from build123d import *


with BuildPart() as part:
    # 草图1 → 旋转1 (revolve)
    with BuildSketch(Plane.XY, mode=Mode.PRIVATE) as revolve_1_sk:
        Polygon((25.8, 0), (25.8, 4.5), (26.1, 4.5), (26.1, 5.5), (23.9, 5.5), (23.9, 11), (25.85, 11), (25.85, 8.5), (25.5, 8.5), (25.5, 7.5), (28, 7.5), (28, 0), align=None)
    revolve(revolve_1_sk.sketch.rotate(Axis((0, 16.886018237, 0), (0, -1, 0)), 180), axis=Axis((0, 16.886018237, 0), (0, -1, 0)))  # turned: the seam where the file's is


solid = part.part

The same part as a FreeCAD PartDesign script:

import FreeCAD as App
import Part
import Sketcher
Q = App.Units.Quantity

doc = App.newDocument("Part")
body = doc.addObject("PartDesign::Body", "Body")

sketch1 = doc.addObject("Sketcher::SketchObject", "Sketch")
body.addObject(sketch1)
sketch1.AttachmentSupport = (doc.XY_Plane, [""])
sketch1.MapMode = "FlatFace"
sketch1.addGeometry([
    Part.LineSegment(App.Vector(25.8, 4.5, 0), App.Vector(25.8, 0, 0)),
    Part.LineSegment(App.Vector(25.8, 0, 0), App.Vector(28, 0, 0)),
    Part.LineSegment(App.Vector(28, 0, 0), App.Vector(28, 7.5, 0)),
    Part.LineSegment(App.Vector(28, 7.5, 0), App.Vector(25.5, 7.5, 0)),
    Part.LineSegment(App.Vector(25.5, 7.5, 0), App.Vector(25.5, 8.5, 0)),
    Part.LineSegment(App.Vector(25.5, 8.5, 0), App.Vector(25.85, 8.5, 0)),
    Part.LineSegment(App.Vector(25.85, 8.5, 0), App.Vector(25.85, 11, 0)),
    Part.LineSegment(App.Vector(25.85, 11, 0), App.Vector(23.9, 11, 0)),
    Part.LineSegment(App.Vector(23.9, 11, 0), App.Vector(23.9, 5.5, 0)),
    Part.LineSegment(App.Vector(23.9, 5.5, 0), App.Vector(26.1, 5.5, 0)),
    Part.LineSegment(App.Vector(26.1, 5.5, 0), App.Vector(26.1, 4.5, 0)),
    Part.LineSegment(App.Vector(26.1, 4.5, 0), App.Vector(25.8, 4.5, 0)),
], False)
sketch1.addConstraint([
    Sketcher.Constraint("Coincident", 0, 2, 1, 1),
    Sketcher.Constraint("Coincident", 1, 2, 2, 1),
    Sketcher.Constraint("Coincident", 2, 2, 3, 1),
    Sketcher.Constraint("Coincident", 3, 2, 4, 1),
    Sketcher.Constraint("Coincident", 4, 2, 5, 1),
    Sketcher.Constraint("Coincident", 5, 2, 6, 1),
    Sketcher.Constraint("Coincident", 6, 2, 7, 1),
    Sketcher.Constraint("Coincident", 7, 2, 8, 1),
    Sketcher.Constraint("Coincident", 8, 2, 9, 1),
    Sketcher.Constraint("Coincident", 9, 2, 10, 1),
    Sketcher.Constraint("Coincident", 10, 2, 11, 1),
    Sketcher.Constraint("Coincident", 11, 2, 0, 1),
    Sketcher.Constraint("Vertical", 0),
    Sketcher.Constraint("Horizontal", 1),
    Sketcher.Constraint("Vertical", 2),
    Sketcher.Constraint("Horizontal", 3),
    Sketcher.Constraint("Vertical", 4),
    Sketcher.Constraint("Horizontal", 5),
    Sketcher.Constraint("Vertical", 6),
    Sketcher.Constraint("Horizontal", 7),
    Sketcher.Constraint("Vertical", 8),
    Sketcher.Constraint("Horizontal", 9),
    Sketcher.Constraint("Vertical", 10),
    Sketcher.Constraint("Horizontal", 11),
    Sketcher.Constraint("PointOnObject", 0, 2, -1),
    Sketcher.Constraint("Equal", 1, 9),
    Sketcher.Constraint("Equal", 3, 6),
    Sketcher.Constraint("Equal", 4, 10),
    Sketcher.Constraint("DistanceY", 4, 1, 4, 2, Q("1 mm")),
    Sketcher.Constraint("DistanceX", 1, 1, 1, 2, Q("2.2 mm")),
    Sketcher.Constraint("DistanceX", 3, 2, 3, 1, Q("2.5 mm")),
    Sketcher.Constraint("DistanceX", 11, 2, 11, 1, Q("0.3 mm")),
    Sketcher.Constraint("DistanceY", 0, 2, 0, 1, Q("4.5 mm")),
    Sketcher.Constraint("DistanceY", 2, 1, 2, 2, Q("7.5 mm")),
    Sketcher.Constraint("DistanceX", -1, 1, 1, 2, Q("28 mm")),
    Sketcher.Constraint("DistanceX", 5, 1, 5, 2, Q("0.35 mm")),
])
revolution = doc.addObject("PartDesign::Revolution", "Revolution")
body.addObject(revolution)
revolution.Profile = sketch1
revolution.ReferenceAxis = (sketch1, ["V_Axis"])
revolution.Angle = 360

doc.recompute()
